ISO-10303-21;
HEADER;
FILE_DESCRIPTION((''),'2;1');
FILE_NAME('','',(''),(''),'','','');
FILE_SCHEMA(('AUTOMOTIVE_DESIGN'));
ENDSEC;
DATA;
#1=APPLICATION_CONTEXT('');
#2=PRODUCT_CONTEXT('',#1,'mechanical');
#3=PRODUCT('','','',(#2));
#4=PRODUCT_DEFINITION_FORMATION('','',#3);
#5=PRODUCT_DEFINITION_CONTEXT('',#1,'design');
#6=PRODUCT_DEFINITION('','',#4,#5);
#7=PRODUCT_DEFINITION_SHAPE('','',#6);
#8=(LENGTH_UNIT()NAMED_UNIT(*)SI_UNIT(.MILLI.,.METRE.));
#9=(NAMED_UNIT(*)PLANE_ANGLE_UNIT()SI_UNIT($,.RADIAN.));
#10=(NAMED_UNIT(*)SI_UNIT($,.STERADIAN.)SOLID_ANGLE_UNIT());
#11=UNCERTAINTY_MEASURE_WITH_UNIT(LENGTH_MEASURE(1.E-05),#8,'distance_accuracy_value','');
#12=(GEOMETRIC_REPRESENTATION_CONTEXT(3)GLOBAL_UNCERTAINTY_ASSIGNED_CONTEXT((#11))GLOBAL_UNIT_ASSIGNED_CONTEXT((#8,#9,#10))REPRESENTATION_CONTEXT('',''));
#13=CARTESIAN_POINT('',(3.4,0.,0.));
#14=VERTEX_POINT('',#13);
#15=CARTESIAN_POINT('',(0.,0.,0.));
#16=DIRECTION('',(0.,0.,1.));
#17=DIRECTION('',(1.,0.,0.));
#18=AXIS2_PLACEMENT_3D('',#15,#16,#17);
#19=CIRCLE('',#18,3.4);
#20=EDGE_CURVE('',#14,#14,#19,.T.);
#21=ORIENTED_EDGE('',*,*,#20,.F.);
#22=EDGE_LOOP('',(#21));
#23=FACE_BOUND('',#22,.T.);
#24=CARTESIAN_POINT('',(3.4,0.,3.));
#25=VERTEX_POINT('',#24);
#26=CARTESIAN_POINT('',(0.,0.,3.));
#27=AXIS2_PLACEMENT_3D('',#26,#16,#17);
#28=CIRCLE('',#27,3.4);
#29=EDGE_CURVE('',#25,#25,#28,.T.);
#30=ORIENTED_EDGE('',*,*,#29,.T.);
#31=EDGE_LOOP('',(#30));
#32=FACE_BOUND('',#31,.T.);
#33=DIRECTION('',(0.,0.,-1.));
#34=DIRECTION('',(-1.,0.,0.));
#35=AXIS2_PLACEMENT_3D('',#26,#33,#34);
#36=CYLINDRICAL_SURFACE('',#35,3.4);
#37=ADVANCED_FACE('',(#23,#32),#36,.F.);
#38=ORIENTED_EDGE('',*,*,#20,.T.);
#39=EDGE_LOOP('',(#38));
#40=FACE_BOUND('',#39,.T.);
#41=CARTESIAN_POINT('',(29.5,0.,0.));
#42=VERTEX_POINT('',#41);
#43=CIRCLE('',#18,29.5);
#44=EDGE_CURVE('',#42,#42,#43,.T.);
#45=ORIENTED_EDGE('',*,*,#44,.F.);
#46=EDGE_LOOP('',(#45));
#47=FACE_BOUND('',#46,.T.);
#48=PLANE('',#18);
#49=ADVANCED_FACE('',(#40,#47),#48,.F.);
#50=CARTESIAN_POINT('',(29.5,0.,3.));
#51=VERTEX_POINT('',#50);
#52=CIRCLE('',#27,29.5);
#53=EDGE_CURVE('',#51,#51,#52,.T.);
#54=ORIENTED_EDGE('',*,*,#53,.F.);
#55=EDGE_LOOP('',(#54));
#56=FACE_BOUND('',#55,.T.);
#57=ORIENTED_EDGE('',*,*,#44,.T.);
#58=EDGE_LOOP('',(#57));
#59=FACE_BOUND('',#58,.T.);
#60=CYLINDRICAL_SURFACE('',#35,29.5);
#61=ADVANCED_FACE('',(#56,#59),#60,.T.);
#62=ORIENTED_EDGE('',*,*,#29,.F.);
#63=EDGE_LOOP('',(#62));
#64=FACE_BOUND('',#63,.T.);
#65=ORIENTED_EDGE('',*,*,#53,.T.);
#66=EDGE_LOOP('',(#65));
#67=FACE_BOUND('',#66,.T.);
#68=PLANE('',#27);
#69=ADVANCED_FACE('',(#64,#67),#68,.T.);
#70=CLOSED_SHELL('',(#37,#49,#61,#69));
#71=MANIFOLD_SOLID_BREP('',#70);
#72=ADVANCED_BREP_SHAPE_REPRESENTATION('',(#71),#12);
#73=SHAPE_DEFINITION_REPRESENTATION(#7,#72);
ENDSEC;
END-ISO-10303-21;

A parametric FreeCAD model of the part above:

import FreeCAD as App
import Part
import Sketcher

doc = App.newDocument("Part")
body = doc.addObject("PartDesign::Body", "Body")

# Sketch on XY plane
sketch1 = body.newObject("Sketcher::SketchObject", "Sketch")
sketch1.AttachmentSupport = (doc.getObject("XY_Plane"), [""])
sketch1.MapMode = "FlatFace"
sketch1.addGeometry(Part.Circle(App.Vector(0, 0, 0), App.Vector(0, 0, 1), 29.5), False)
sketch1.addGeometry(Part.Circle(App.Vector(0, 0, 0), App.Vector(0, 0, 1), 3.4), False)
sketch1.addConstraint(Sketcher.Constraint("Coincident", 0, 3, -1, 1))
sketch1.addConstraint(Sketcher.Constraint("Coincident", 1, 3, -1, 1))
sketch1.addConstraint(Sketcher.Constraint("Diameter", 0, 59.0))
sketch1.addConstraint(Sketcher.Constraint("Diameter", 1, 6.8))
pad1 = body.newObject("PartDesign::Pad", "Pad")
pad1.Profile = sketch1
pad1.Length = 3

doc.recompute()
